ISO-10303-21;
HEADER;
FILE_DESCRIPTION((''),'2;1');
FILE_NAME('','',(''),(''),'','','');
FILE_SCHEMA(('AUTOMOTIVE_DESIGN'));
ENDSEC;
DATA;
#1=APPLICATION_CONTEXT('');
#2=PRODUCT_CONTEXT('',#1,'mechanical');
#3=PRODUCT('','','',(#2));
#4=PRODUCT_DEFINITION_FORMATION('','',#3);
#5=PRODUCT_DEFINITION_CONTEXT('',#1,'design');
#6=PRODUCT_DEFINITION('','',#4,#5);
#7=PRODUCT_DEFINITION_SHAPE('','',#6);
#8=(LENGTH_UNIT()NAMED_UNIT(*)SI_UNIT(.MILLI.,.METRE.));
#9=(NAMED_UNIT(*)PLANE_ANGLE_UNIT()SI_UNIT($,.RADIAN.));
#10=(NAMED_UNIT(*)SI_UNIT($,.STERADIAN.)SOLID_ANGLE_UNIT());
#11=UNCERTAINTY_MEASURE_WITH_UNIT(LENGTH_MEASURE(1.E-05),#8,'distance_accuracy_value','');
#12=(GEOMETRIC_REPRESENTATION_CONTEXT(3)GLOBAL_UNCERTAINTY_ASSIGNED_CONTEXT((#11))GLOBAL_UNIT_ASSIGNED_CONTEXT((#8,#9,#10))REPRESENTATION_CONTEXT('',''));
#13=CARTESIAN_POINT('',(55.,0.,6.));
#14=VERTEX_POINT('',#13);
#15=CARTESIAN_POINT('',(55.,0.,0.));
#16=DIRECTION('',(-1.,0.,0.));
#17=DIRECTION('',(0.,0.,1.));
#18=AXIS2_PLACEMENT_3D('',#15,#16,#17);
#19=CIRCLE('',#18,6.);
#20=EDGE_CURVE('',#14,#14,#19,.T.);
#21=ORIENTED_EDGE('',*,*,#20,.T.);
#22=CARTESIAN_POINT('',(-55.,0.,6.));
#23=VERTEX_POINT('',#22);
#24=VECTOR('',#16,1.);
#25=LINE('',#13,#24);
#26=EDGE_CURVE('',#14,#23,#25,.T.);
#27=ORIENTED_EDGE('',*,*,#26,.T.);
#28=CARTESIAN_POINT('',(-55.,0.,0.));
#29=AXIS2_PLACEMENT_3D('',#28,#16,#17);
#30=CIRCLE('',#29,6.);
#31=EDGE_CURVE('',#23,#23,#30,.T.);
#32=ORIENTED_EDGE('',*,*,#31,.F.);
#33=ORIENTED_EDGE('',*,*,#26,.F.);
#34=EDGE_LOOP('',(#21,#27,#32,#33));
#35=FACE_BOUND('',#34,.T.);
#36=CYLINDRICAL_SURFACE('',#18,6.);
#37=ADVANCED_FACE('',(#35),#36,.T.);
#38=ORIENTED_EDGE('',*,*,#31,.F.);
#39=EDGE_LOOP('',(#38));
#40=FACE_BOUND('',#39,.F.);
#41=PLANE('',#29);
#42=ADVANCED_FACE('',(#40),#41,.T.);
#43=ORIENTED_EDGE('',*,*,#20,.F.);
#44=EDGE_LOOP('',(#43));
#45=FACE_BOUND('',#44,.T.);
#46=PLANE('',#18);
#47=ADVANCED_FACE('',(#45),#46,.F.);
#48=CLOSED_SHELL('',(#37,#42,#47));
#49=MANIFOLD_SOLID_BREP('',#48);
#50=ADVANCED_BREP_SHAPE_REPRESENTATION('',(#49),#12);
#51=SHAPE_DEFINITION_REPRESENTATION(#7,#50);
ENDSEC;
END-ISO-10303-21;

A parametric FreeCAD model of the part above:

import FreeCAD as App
import Part
import Sketcher
Q = App.Units.Quantity

doc = App.newDocument("Part")
body = doc.addObject("PartDesign::Body", "Body")

sketch1 = body.newObject("Sketcher::SketchObject", "Sketch")
sketch1.AttachmentSupport = (doc.getObject("XZ_Plane"), [""])
sketch1.MapMode = "FlatFace"
sketch1.addGeometry([
    Part.LineSegment(App.Vector(-55, 6, 0), App.Vector(-55, 0, 0)),
    Part.LineSegment(App.Vector(-55, 0, 0), App.Vector(55, 0, 0)),
    Part.LineSegment(App.Vector(55, 0, 0), App.Vector(55, 6, 0)),
    Part.LineSegment(App.Vector(55, 6, 0), App.Vector(-55, 6, 0)),
], False)
sketch1.addConstraint([
    Sketcher.Constraint("Coincident", 0, 2, 1, 1),
    Sketcher.Constraint("Coincident", 1, 2, 2, 1),
    Sketcher.Constraint("Coincident", 2, 2, 3, 1),
    Sketcher.Constraint("Coincident", 3, 2, 0, 1),
    Sketcher.Constraint("Vertical", 0),
    Sketcher.Constraint("Horizontal", 1),
    Sketcher.Constraint("Vertical", 2),
    Sketcher.Constraint("Horizontal", 3),
    Sketcher.Constraint("Symmetric", 0, 2, 1, 2, -1, 1),
    Sketcher.Constraint("DistanceX", 1, 1, 1, 2, Q("110 mm")),
    Sketcher.Constraint("DistanceY", 0, 2, 0, 1, Q("6 mm")),
])
revolution = body.newObject("PartDesign::Revolution", "Revolution")
revolution.Profile = sketch1
revolution.ReferenceAxis = (sketch1, ["H_Axis"])
revolution.Angle = 360

doc.recompute()
